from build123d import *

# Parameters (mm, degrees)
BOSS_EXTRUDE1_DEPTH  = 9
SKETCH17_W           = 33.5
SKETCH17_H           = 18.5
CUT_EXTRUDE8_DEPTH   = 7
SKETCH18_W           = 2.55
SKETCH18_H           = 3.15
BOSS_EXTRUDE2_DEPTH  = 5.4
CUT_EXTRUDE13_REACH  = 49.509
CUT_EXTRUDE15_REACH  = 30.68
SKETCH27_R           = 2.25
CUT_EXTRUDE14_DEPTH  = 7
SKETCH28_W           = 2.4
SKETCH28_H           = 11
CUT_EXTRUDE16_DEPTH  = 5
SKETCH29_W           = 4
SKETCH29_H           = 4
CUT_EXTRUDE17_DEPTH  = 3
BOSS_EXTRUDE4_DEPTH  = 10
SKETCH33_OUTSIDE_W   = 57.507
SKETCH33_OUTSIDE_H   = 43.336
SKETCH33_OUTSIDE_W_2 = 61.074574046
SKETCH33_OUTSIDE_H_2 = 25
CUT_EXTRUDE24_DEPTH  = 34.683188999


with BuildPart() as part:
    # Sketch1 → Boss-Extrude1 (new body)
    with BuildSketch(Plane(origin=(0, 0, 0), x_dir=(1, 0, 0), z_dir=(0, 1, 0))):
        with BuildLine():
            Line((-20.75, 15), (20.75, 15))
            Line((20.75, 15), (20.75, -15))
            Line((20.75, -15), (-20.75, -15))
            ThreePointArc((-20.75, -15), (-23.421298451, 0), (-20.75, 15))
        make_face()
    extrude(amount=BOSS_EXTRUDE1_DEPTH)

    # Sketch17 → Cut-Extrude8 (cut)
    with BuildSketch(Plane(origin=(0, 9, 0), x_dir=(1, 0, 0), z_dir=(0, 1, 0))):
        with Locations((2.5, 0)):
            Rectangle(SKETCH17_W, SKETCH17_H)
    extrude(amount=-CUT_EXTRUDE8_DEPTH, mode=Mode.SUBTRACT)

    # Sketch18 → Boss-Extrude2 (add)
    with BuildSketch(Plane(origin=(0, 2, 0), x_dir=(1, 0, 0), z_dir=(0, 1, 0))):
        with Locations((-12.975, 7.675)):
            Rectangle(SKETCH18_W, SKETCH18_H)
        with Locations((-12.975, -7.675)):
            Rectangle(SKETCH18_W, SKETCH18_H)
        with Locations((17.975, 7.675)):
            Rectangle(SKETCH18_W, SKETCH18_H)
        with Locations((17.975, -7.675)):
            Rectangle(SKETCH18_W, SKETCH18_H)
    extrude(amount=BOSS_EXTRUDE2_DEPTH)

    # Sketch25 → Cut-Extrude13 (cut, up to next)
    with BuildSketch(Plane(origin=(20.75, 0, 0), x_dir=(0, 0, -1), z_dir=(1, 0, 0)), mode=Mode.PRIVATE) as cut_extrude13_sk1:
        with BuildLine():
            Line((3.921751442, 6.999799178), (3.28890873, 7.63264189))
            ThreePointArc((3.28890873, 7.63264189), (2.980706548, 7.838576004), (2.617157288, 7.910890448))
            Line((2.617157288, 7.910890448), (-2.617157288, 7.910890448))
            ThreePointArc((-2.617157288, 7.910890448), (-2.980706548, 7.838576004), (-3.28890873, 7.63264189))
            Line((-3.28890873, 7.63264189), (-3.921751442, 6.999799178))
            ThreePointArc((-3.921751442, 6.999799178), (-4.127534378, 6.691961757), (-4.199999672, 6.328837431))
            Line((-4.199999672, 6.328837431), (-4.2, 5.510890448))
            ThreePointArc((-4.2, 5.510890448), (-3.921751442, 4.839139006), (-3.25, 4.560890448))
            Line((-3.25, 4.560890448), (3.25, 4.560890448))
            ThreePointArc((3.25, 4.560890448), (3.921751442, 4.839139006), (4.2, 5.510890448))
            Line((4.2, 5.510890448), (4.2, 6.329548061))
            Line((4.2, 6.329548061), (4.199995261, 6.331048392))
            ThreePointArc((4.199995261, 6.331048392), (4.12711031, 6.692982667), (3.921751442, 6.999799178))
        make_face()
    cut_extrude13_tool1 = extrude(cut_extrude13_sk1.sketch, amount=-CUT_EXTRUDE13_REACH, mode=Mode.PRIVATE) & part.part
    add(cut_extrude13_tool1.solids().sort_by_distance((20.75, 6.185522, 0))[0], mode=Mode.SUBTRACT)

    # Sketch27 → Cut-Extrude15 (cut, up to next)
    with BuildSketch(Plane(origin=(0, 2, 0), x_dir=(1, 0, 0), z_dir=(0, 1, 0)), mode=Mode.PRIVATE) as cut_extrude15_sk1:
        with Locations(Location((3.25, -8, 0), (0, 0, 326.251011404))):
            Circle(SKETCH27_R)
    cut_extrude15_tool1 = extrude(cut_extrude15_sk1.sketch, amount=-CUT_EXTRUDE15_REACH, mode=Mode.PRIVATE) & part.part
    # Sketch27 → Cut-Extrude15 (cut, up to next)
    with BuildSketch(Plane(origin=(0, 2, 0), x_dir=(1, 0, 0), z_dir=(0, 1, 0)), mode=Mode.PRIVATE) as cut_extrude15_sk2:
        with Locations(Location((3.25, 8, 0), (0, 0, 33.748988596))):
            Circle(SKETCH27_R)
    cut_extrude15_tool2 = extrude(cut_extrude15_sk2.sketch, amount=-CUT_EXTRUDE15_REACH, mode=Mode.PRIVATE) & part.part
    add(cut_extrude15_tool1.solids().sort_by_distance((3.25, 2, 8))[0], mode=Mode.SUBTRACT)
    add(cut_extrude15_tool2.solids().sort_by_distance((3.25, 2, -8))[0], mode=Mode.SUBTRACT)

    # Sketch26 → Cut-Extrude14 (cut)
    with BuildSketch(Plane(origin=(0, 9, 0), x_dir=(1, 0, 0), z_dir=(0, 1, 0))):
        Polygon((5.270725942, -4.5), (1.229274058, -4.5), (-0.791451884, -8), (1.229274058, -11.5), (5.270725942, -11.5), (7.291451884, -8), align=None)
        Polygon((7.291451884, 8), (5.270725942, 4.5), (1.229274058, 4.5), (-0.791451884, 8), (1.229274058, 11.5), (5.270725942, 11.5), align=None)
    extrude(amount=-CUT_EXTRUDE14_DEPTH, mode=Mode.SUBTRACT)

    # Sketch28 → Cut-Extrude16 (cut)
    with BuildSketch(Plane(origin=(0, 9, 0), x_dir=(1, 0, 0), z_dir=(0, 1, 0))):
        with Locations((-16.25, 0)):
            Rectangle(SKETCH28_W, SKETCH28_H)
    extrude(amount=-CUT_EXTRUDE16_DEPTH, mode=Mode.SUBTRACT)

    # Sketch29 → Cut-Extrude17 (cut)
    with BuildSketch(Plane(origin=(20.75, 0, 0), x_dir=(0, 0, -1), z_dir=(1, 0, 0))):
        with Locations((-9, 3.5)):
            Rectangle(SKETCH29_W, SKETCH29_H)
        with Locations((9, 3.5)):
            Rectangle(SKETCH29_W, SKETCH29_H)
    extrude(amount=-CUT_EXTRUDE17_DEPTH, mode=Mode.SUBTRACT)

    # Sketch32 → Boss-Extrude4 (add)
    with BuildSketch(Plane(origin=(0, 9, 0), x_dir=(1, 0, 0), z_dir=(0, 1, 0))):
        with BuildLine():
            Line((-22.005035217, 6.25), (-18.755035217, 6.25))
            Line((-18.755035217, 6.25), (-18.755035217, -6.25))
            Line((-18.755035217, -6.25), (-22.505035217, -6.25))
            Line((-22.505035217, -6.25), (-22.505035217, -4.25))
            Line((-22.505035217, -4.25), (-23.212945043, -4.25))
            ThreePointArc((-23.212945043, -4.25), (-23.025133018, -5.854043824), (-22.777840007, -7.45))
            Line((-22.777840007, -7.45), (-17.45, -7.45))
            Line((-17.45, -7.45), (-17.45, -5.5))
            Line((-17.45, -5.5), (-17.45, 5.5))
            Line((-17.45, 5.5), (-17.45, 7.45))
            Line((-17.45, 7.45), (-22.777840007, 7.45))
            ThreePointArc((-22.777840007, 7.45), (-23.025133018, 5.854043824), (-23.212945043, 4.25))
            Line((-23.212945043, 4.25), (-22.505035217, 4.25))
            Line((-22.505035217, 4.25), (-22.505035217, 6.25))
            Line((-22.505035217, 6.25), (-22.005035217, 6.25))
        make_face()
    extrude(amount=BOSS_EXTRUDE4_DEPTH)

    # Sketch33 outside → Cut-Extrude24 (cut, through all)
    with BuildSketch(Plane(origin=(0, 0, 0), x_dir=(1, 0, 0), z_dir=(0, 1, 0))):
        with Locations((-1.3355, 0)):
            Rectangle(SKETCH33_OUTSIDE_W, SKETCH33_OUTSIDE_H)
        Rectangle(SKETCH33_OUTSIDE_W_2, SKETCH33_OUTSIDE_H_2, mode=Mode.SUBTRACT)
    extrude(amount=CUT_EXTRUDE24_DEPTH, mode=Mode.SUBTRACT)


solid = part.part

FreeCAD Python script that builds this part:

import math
import FreeCAD as App
import Part
import Sketcher
from FreeCAD import Vector
Q = App.Units.Quantity

doc = App.newDocument("Part")
body = doc.addObject("PartDesign::Body", "Body")

sketch1 = body.newObject("Sketcher::SketchObject", "Sketch")
sketch1.AttachmentSupport = (doc.getObject("XZ_Plane"), [""])
sketch1.MapMode = "FlatFace"
sketch1.addGeometry([
    Part.LineSegment(Vector(21, -15, 0), Vector(-21, -15, 0)),
    Part.ArcOfCircle(Part.Circle(Vector(20, 0, 0), Vector(0, 0, 1), 43), math.radians(160), math.radians(200)),
    Part.LineSegment(Vector(-21, 15, 0), Vector(21, 15, 0)),
    Part.LineSegment(Vector(21, 15, 0), Vector(21, -15, 0)),
], False)
sketch1.addConstraint([
    Sketcher.Constraint("Coincident", 0, 2, 1, 2),
    Sketcher.Constraint("Coincident", 1, 1, 2, 1),
    Sketcher.Constraint("Coincident", 2, 2, 3, 1),
    Sketcher.Constraint("Coincident", 3, 2, 0, 1),
    Sketcher.Constraint("Horizontal", 0),
    Sketcher.Constraint("Horizontal", 2),
    Sketcher.Constraint("Vertical", 3),
    Sketcher.Constraint("Symmetric", 0, 2, 2, 2, -1, 1),
    Sketcher.Constraint("PointOnObject", 1, 3, -1),
    Sketcher.Constraint("DistanceY", 3, 2, 3, 1, Q("30 mm")),
    Sketcher.Constraint("Radius", 1, Q("43.45 mm")),
    Sketcher.Constraint("DistanceX", 0, 2, 0, 1, Q("41.5 mm")),
])
pad1 = body.newObject("PartDesign::Pad", "Pad")
pad1.Profile = sketch1
pad1.Length = 9
pad1.Reversed = True

sketch2 = body.newObject("Sketcher::SketchObject", "Sketch001")
sketch2.AttachmentSupport = (doc.getObject("XZ_Plane"), [""])
sketch2.MapMode = "FlatFace"
sketch2.AttachmentOffset = App.Placement(Vector(0, 0, -9), App.Rotation())
sketch2.addGeometry([
    Part.LineSegment(Vector(-14, -9, 0), Vector(-14, 9, 0)),
    Part.LineSegment(Vector(-14, 9, 0), Vector(19, 9, 0)),
    Part.LineSegment(Vector(19, 9, 0), Vector(19, -9, 0)),
    Part.LineSegment(Vector(19, -9, 0), Vector(-14, -9, 0)),
], False)
sketch2.addConstraint([
    Sketcher.Constraint("Coincident", 0, 2, 1, 1),
    Sketcher.Constraint("Coincident", 1, 2, 2, 1),
    Sketcher.Constraint("Coincident", 2, 2, 3, 1),
    Sketcher.Constraint("Coincident", 3, 2, 0, 1),
    Sketcher.Constraint("Vertical", 0),
    Sketcher.Constraint("Horizontal", 1),
    Sketcher.Constraint("Vertical", 2),
    Sketcher.Constraint("Horizontal", 3),
    Sketcher.Constraint("DistanceX", 1, 1, 1, 2, Q("33.5 mm")),
    Sketcher.Constraint("DistanceY", 0, 1, 0, 2, Q("18.5 mm")),
    Sketcher.Constraint("DistanceX", 0, 2, -1, 1, Q("14.25 mm")),
    Sketcher.Constraint("DistanceY", -1, 1, 0, 2, Q("9.25 mm")),
])
pocket1 = body.newObject("PartDesign::Pocket", "Pocket")
pocket1.Profile = sketch2
pocket1.Length = 7
pocket1.Reversed = True

sketch3 = body.newObject("Sketcher::SketchObject", "Sketch002")
sketch3.AttachmentSupport = (doc.getObject("XZ_Plane"), [""])
sketch3.MapMode = "FlatFace"
sketch3.AttachmentOffset = App.Placement(Vector(0, 0, -2), App.Rotation())
sketch3.addGeometry([
    Part.LineSegment(Vector(-14.2, -9.2, 0), Vector(-14.2, -6.1, 0)),
    Part.LineSegment(Vector(-14.2, -6.1, 0), Vector(-11.7, -6.1, 0)),
    Part.LineSegment(Vector(-11.7, -6.1, 0), Vector(-11.7, -9.2, 0)),
    Part.LineSegment(Vector(-11.7, -9.2, 0), Vector(-14.2, -9.2, 0)),
    Part.LineSegment(Vector(-14.2, 6.1, 0), Vector(-14.2, 9.2, 0)),
    Part.LineSegment(Vector(-14.2, 9.2, 0), Vector(-11.7, 9.2, 0)),
    Part.LineSegment(Vector(-11.7, 9.2, 0), Vector(-11.7, 6.1, 0)),
    Part.LineSegment(Vector(-11.7, 6.1, 0), Vector(-14.2, 6.1, 0)),
    Part.LineSegment(Vector(16.7, -9.2, 0), Vector(16.7, -6.1, 0)),
    Part.LineSegment(Vector(16.7, -6.1, 0), Vector(19.2, -6.1, 0)),
    Part.LineSegment(Vector(19.2, -6.1, 0), Vector(19.2, -9.2, 0)),
    Part.LineSegment(Vector(19.2, -9.2, 0), Vector(16.7, -9.2, 0)),
    Part.LineSegment(Vector(16.7, 6.1, 0), Vector(16.7, 9.2, 0)),
    Part.LineSegment(Vector(16.7, 9.2, 0), Vector(19.2, 9.2, 0)),
    Part.LineSegment(Vector(19.2, 9.2, 0), Vector(19.2, 6.1, 0)),
    Part.LineSegment(Vector(19.2, 6.1, 0), Vector(16.7, 6.1, 0)),
], False)
sketch3.addConstraint([
    Sketcher.Constraint("Coincident", 0, 2, 1, 1),
    Sketcher.Constraint("Coincident", 1, 2, 2, 1),
    Sketcher.Constraint("Coincident", 2, 2, 3, 1),
    Sketcher.Constraint("Coincident", 3, 2, 0, 1),
    Sketcher.Constraint("Coincident", 4, 2, 5, 1),
    Sketcher.Constraint("Coincident", 5, 2, 6, 1),
    Sketcher.Constraint("Coincident", 6, 2, 7, 1),
    Sketcher.Constraint("Coincident", 7, 2, 4, 1),
    Sketcher.Constraint("Coincident", 8, 2, 9, 1),
    Sketcher.Constraint("Coincident", 9, 2, 10, 1),
    Sketcher.Constraint("Coincident", 10, 2, 11, 1),
    Sketcher.Constraint("Coincident", 11, 2, 8, 1),
    Sketcher.Constraint("Coincident", 12, 2, 13, 1),
    Sketcher.Constraint("Coincident", 13, 2, 14, 1),
    Sketcher.Constraint("Coincident", 14, 2, 15, 1),
    Sketcher.Constraint("Coincident", 15, 2, 12, 1),
    Sketcher.Constraint("Vertical", 0),
    Sketcher.Constraint("Horizontal", 1),
    Sketcher.Constraint("Vertical", 2),
    Sketcher.Constraint("Horizontal", 3),
    Sketcher.Constraint("Vertical", 4),
    Sketcher.Constraint("Horizontal", 5),
    Sketcher.Constraint("Vertical", 6),
    Sketcher.Constraint("Horizontal", 7),
    Sketcher.Constraint("Vertical", 8),
    Sketcher.Constraint("Horizontal", 9),
    Sketcher.Constraint("Vertical", 10),
    Sketcher.Constraint("Horizontal", 11),
    Sketcher.Constraint("Vertical", 12),
    Sketcher.Constraint("Horizontal", 13),
    Sketcher.Constraint("Vertical", 14),
    Sketcher.Constraint("Horizontal", 15),
    Sketcher.Constraint("Symmetric", 3, 2, 4, 2, -1),
    Sketcher.Constraint("Symmetric", 1, 2, 6, 2, -1),
    Sketcher.Constraint("Symmetric", 11, 2, 12, 2, -1),
    Sketcher.Constraint("Symmetric", 9, 2, 14, 2, -1),
    Sketcher.Constraint("Horizontal", 1, 2, 8, 2),
    Sketcher.Constraint("Horizontal", 3, 2, 10, 2),
    Sketcher.Constraint("Equal", 7, 9),
    Sketcher.Constraint("DistanceX", 1, 1, 1, 2, Q("2.55 mm")),
    Sketcher.Constraint("DistanceY", 0, 1, 0, 2, Q("3.15 mm")),
    Sketcher.Constraint("DistanceY", 0, 2, -1, 1, Q("6.1 mm")),
    Sketcher.Constraint("DistanceX", 1, 2, -1, 1, Q("11.7 mm")),
    Sketcher.Constraint("DistanceX", -1, 1, 8, 2, Q("16.7 mm")),
])
pad2 = body.newObject("PartDesign::Pad", "Pad001")
pad2.Profile = sketch3
pad2.Length = 5.4
pad2.Reversed = True

sketch4 = body.newObject("Sketcher::SketchObject", "Sketch003")
sketch4.AttachmentSupport = (doc.getObject("YZ_Plane"), [""])
sketch4.MapMode = "FlatFace"
sketch4.AttachmentOffset = App.Placement(Vector(0, 0, 20.75), App.Rotation())
sketch4.addGeometry([
    Part.LineSegment(Vector(6.9998, -3.9218, 0), Vector(7.6326, -3.2889, 0)),
    Part.ArcOfCircle(Part.Circle(Vector(6.9609, -2.6172, 0), Vector(0, 0, 1), 0.95), math.radians(-45), math.radians(0)),
    Part.LineSegment(Vector(7.9109, -2.6172, 0), Vector(7.9109, 2.6172, 0)),
    Part.ArcOfCircle(Part.Circle(Vector(6.9609, 2.6172, 0), Vector(0, 0, 1), 0.95), math.radians(0), math.radians(45)),
    Part.LineSegment(Vector(7.6326, 3.2889, 0), Vector(6.9998, 3.9218, 0)),
    Part.ArcOfCircle(Part.Circle(Vector(6.328, 3.25, 0), Vector(0, 0, 1), 0.95), math.radians(45), math.radians(90)),
    Part.LineSegment(Vector(6.3288, 4.2, 0), Vector(5.5109, 4.2, 0)),
    Part.ArcOfCircle(Part.Circle(Vector(5.5109, 3.25, 0), Vector(0, 0, 1), 0.95), math.radians(90), math.radians(180)),
    Part.LineSegment(Vector(4.5609, 3.25, 0), Vector(4.5609, -3.25, 0)),
    Part.ArcOfCircle(Part.Circle(Vector(5.5109, -3.25, 0), Vector(0, 0, 1), 0.95), math.radians(180), math.radians(270)),
    Part.LineSegment(Vector(5.5109, -4.2, 0), Vector(6.3295, -4.2, 0)),
    Part.LineSegment(Vector(6.3295, -4.2, 0), Vector(6.331, -4.2, 0)),
    Part.ArcOfCircle(Part.Circle(Vector(6.328, -3.25, 0), Vector(0, 0, 1), 0.95), math.radians(-90), math.radians(-45)),
], False)
sketch4.addConstraint([
    Sketcher.Constraint("Tangent", 0, 2, 1, 1),
    Sketcher.Constraint("Tangent", 1, 2, 2, 1),
    Sketcher.Constraint("Tangent", 2, 2, 3, 1),
    Sketcher.Constraint("Tangent", 3, 2, 4, 1),
    Sketcher.Constraint("Tangent", 4, 2, 5, 1),
    Sketcher.Constraint("Coincident", 5, 2, 6, 1),
    Sketcher.Constraint("Tangent", 6, 2, 7, 1),
    Sketcher.Constraint("Tangent", 7, 2, 8, 1),
    Sketcher.Constraint("Tangent", 8, 2, 9, 1),
    Sketcher.Constraint("Tangent", 9, 2, 10, 1),
    Sketcher.Constraint("Coincident", 10, 2, 11, 1),
    Sketcher.Constraint("Tangent", 11, 2, 12, 1),
    Sketcher.Constraint("Tangent", 12, 2, 0, 1),
    Sketcher.Constraint("Vertical", 2),
    Sketcher.Constraint("Horizontal", 6),
    Sketcher.Constraint("Vertical", 8),
    Sketcher.Constraint("Horizontal", 10),
    Sketcher.Constraint("Equal", 1, 3),
    Sketcher.Constraint("Equal", 3, 5),
    Sketcher.Constraint("Equal", 5, 7),
    Sketcher.Constraint("Equal", 7, 9),
    Sketcher.Constraint("Equal", 9, 12),
    Sketcher.Constraint("Symmetric", 5, 3, 12, 3, -1),
    Sketcher.Constraint("Perpendicular", 0, 4),
    Sketcher.Constraint("Vertical", 0, 2, 3, 2),
    Sketcher.Constraint("Radius", 1, Q("0.95 mm")),
    Sketcher.Constraint("DistanceY", 8, 2, 8, 1, Q("6.5 mm")),
    Sketcher.Constraint("DistanceX", 9, 3, 1, 2, Q("2.4 mm")),
    Sketcher.Constraint("DistanceX", 12, 3, 11, 2, Q("0.003001 mm")),
    Sketcher.Constraint("Distance", 11, Q("0.0015 mm")),
    Sketcher.Constraint("DistanceX", -1, 1, 4, 2, Q("6.999799 mm")),
    Sketcher.Constraint("DistanceX", 6, 2, 6, 1, Q("0.817947 mm")),
    Sketcher.Constraint("DistanceX", 10, 1, 10, 2, Q("0.818658 mm")),
])
pocket2 = body.newObject("PartDesign::Pocket", "Pocket001")
pocket2.Profile = sketch4
pocket2.Type = "UpToFirst"

sketch5 = body.newObject("Sketcher::SketchObject", "Sketch004")
sketch5.AttachmentSupport = (doc.getObject("XZ_Plane"), [""])
sketch5.MapMode = "FlatFace"
sketch5.AttachmentOffset = App.Placement(Vector(0, 0, -2), App.Rotation())
sketch5.addGeometry(Part.Circle(Vector(3.2, 8, 0), Vector(0, 0, 1), 2.2), False)
sketch5.addConstraint([
    Sketcher.Constraint("Diameter", 0, Q("4.5 mm")),
    Sketcher.Constraint("DistanceY", -1, 1, 0, 3, Q("8 mm")),
    Sketcher.Constraint("DistanceX", -1, 1, 0, 3, Q("3.25 mm")),
])
pocket3 = body.newObject("PartDesign::Pocket", "Pocket002")
pocket3.Profile = sketch5
pocket3.Type = "UpToFirst"
pocket3.Reversed = True

sketch6 = body.newObject("Sketcher::SketchObject", "Sketch005")
sketch6.AttachmentSupport = (doc.getObject("XZ_Plane"), [""])
sketch6.MapMode = "FlatFace"
sketch6.AttachmentOffset = App.Placement(Vector(0, 0, -2), App.Rotation())
sketch6.addGeometry(Part.Circle(Vector(3.2, -8, 0), Vector(0, 0, 1), 2.2), False)
sketch6.addConstraint([
    Sketcher.Constraint("Diameter", 0, Q("4.5 mm")),
    Sketcher.Constraint("DistanceY", 0, 3, -1, 1, Q("8 mm")),
    Sketcher.Constraint("DistanceX", -1, 1, 0, 3, Q("3.25 mm")),
])
pocket4 = body.newObject("PartDesign::Pocket", "Pocket003")
pocket4.Profile = sketch6
pocket4.Type = "UpToFirst"
pocket4.Reversed = True

sketch7 = body.newObject("Sketcher::SketchObject", "Sketch006")
sketch7.AttachmentSupport = (doc.getObject("XZ_Plane"), [""])
sketch7.MapMode = "FlatFace"
sketch7.AttachmentOffset = App.Placement(Vector(0, 0, -9), App.Rotation())
sketch7.addGeometry([
    Part.LineSegment(Vector(5.3, 4.5, 0), Vector(1.2, 4.5, 0)),
    Part.LineSegment(Vector(1.2, 4.5, 0), Vector(-0.8, 8, 0)),
    Part.LineSegment(Vector(-0.8, 8, 0), Vector(1.2, 11.5, 0)),
    Part.LineSegment(Vector(1.2, 11.5, 0), Vector(5.3, 11.5, 0)),
    Part.LineSegment(Vector(5.3, 11.5, 0), Vector(7.3, 8, 0)),
    Part.LineSegment(Vector(7.3, 8, 0), Vector(5.3, 4.5, 0)),
    Part.LineSegment(Vector(5.3, -4.5, 0), Vector(7.3, -8, 0)),
    Part.LineSegment(Vector(7.3, -8, 0), Vector(5.3, -11.5, 0)),
    Part.LineSegment(Vector(5.3, -11.5, 0), Vector(1.2, -11.5, 0)),
    Part.LineSegment(Vector(1.2, -11.5, 0), Vector(-0.8, -8, 0)),
    Part.LineSegment(Vector(-0.8, -8, 0), Vector(1.2, -4.5, 0)),
    Part.LineSegment(Vector(1.2, -4.5, 0), Vector(5.3, -4.5, 0)),
], False)
sketch7.addConstraint([
    Sketcher.Constraint("Coincident", 0, 2, 1, 1),
    Sketcher.Constraint("Coincident", 1, 2, 2, 1),
    Sketcher.Constraint("Coincident", 2, 2, 3, 1),
    Sketcher.Constraint("Coincident", 3, 2, 4, 1),
    Sketcher.Constraint("Coincident", 4, 2, 5, 1),
    Sketcher.Constraint("Coincident", 5, 2, 0, 1),
    Sketcher.Constraint("Coincident", 6, 2, 7, 1),
    Sketcher.Constraint("Coincident", 7, 2, 8, 1),
    Sketcher.Constraint("Coincident", 8, 2, 9, 1),
    Sketcher.Constraint("Coincident", 9, 2, 10, 1),
    Sketcher.Constraint("Coincident", 10, 2, 11, 1),
    Sketcher.Constraint("Coincident", 11, 2, 6, 1),
    Sketcher.Constraint("Horizontal", 0),
    Sketcher.Constraint("Horizontal", 3),
    Sketcher.Constraint("Horizontal", 8),
    Sketcher.Constraint("Horizontal", 11),
    Sketcher.Constraint("Symmetric", 4, 2, 6, 2, -1),
    Sketcher.Constraint("Symmetric", 3, 2, 7, 2, -1),
    Sketcher.Constraint("Symmetric", 1, 2, 9, 2, -1),
    Sketcher.Constraint("Symmetric", 0, 2, 10, 2, -1),
    Sketcher.Constraint("Parallel", 1, 4),
    Sketcher.Constraint("Parallel", 2, 5),
    Sketcher.Constraint("Parallel", 4, 6),
    Sketcher.Constraint("Parallel", 5, 7),
    Sketcher.Constraint("Parallel", 6, 9),
    Sketcher.Constraint("Horizontal", 1, 2, 4, 2),
    Sketcher.Constraint("Vertical", 0, 2, 2, 2),
    Sketcher.Constraint("Angle", 1, Q("120 deg")),
    Sketcher.Constraint("DistanceY", -1, 1, 1, 2, Q("8 mm")),
    Sketcher.Constraint("DistanceY", 0, 2, 2, 2, Q("7 mm")),
    Sketcher.Constraint("DistanceX", 0, 2, 0, 1, Q("4.041452 mm")),
    Sketcher.Constraint("DistanceX", 1, 2, -1, 1, Q("0.791452 mm")),
])
pocket5 = body.newObject("PartDesign::Pocket", "Pocket004")
pocket5.Profile = sketch7
pocket5.Length = 7
pocket5.Reversed = True

sketch8 = body.newObject("Sketcher::SketchObject", "Sketch007")
sketch8.AttachmentSupport = (doc.getObject("XZ_Plane"), [""])
sketch8.MapMode = "FlatFace"
sketch8.AttachmentOffset = App.Placement(Vector(0, 0, -9), App.Rotation())
sketch8.addGeometry([
    Part.LineSegment(Vector(-17.4, -5.5, 0), Vector(-17.4, 5.5, 0)),
    Part.LineSegment(Vector(-17.4, 5.5, 0), Vector(-15.1, 5.5, 0)),
    Part.LineSegment(Vector(-15.1, 5.5, 0), Vector(-15.1, -5.5, 0)),
    Part.LineSegment(Vector(-15.1, -5.5, 0), Vector(-17.4, -5.5, 0)),
], False)
sketch8.addConstraint([
    Sketcher.Constraint("Coincident", 0, 2, 1, 1),
    Sketcher.Constraint("Coincident", 1, 2, 2, 1),
    Sketcher.Constraint("Coincident", 2, 2, 3, 1),
    Sketcher.Constraint("Coincident", 3, 2, 0, 1),
    Sketcher.Constraint("Vertical", 0),
    Sketcher.Constraint("Horizontal", 1),
    Sketcher.Constraint("Vertical", 2),
    Sketcher.Constraint("Horizontal", 3),
    Sketcher.Constraint("DistanceY", 0, 1, 0, 2, Q("11 mm")),
    Sketcher.Constraint("DistanceX", 1, 1, 1, 2, Q("2.4 mm")),
    Sketcher.Constraint("DistanceY", -1, 1, 0, 2, Q("5.5 mm")),
    Sketcher.Constraint("DistanceX", 0, 2, -1, 1, Q("17.45 mm")),
])
pocket6 = body.newObject("PartDesign::Pocket", "Pocket005")
pocket6.Profile = sketch8
pocket6.Length = 5
pocket6.Reversed = True

sketch9 = body.newObject("Sketcher::SketchObject", "Sketch008")
sketch9.AttachmentSupport = (doc.getObject("YZ_Plane"), [""])
sketch9.MapMode = "FlatFace"
sketch9.AttachmentOffset = App.Placement(Vector(0, 0, 20.75), App.Rotation())
sketch9.addGeometry([
    Part.LineSegment(Vector(5.5, 11, 0), Vector(1.5, 11, 0)),
    Part.LineSegment(Vector(1.5, 11, 0), Vector(1.5, 7, 0)),
    Part.LineSegment(Vector(1.5, 7, 0), Vector(5.5, 7, 0)),
    Part.LineSegment(Vector(5.5, 7, 0), Vector(5.5, 11, 0)),
    Part.LineSegment(Vector(5.5, -7, 0), Vector(1.5, -7, 0)),
    Part.LineSegment(Vector(1.5, -7, 0), Vector(1.5, -11, 0)),
    Part.LineSegment(Vector(1.5, -11, 0), Vector(5.5, -11, 0)),
    Part.LineSegment(Vector(5.5, -11, 0), Vector(5.5, -7, 0)),
], False)
sketch9.addConstraint([
    Sketcher.Constraint("Coincident", 0, 2, 1, 1),
    Sketcher.Constraint("Coincident", 1, 2, 2, 1),
    Sketcher.Constraint("Coincident", 2, 2, 3, 1),
    Sketcher.Constraint("Coincident", 3, 2, 0, 1),
    Sketcher.Constraint("Coincident", 4, 2, 5, 1),
    Sketcher.Constraint("Coincident", 5, 2, 6, 1),
    Sketcher.Constraint("Coincident", 6, 2, 7, 1),
    Sketcher.Constraint("Coincident", 7, 2, 4, 1),
    Sketcher.Constraint("Horizontal", 0),
    Sketcher.Constraint("Vertical", 1),
    Sketcher.Constraint("Horizontal", 2),
    Sketcher.Constraint("Vertical", 3),
    Sketcher.Constraint("Horizontal", 4),
    Sketcher.Constraint("Vertical", 5),
    Sketcher.Constraint("Horizontal", 6),
    Sketcher.Constraint("Vertical", 7),
    Sketcher.Constraint("Symmetric", 1, 2, 4, 2, -1),
    Sketcher.Constraint("Symmetric", 3, 2, 6, 2, -1),
    Sketcher.Constraint("Equal", 6, 1),
    Sketcher.Constraint("DistanceX", 0, 2, 0, 1, Q("4 mm")),
    Sketcher.Constraint("DistanceY", -1, 1, 0, 2, Q("11 mm")),
    Sketcher.Constraint("DistanceX", -1, 1, 0, 2, Q("1.5 mm")),
])
pocket7 = body.newObject("PartDesign::Pocket", "Pocket006")
pocket7.Profile = sketch9
pocket7.Length = 3

sketch10 = body.newObject("Sketcher::SketchObject", "Sketch009")
sketch10.AttachmentSupport = (doc.getObject("XZ_Plane"), [""])
sketch10.MapMode = "FlatFace"
sketch10.AttachmentOffset = App.Placement(Vector(0, 0, -9), App.Rotation())
sketch10.addGeometry([
    Part.LineSegment(Vector(-18.8, -6.2, 0), Vector(-18.8, 6.2, 0)),
    Part.LineSegment(Vector(-18.8, 6.2, 0), Vector(-22.5, 6.2, 0)),
    Part.LineSegment(Vector(-22.5, 6.2, 0), Vector(-22.5, 4.2, 0)),
    Part.LineSegment(Vector(-22.5, 4.2, 0), Vector(-23.2, 4.2, 0)),
    Part.ArcOfCircle(Part.Circle(Vector(20, 0, 0), Vector(0, 0, 1), 43.4), math.radians(170.13), math.radians(174.39)),
    Part.LineSegment(Vector(-22.8, 7.5, 0), Vector(-17.4, 7.5, 0)),
    Part.LineSegment(Vector(-17.4, 7.5, 0), Vector(-17.4, -7.5, 0)),
    Part.LineSegment(Vector(-17.4, -7.5, 0), Vector(-22.8, -7.5, 0)),
    Part.ArcOfCircle(Part.Circle(Vector(20, 0, 0), Vector(0, 0, 1), 43.4), math.radians(-174.39), math.radians(-170.13)),
    Part.LineSegment(Vector(-23.2, -4.2, 0), Vector(-22.5, -4.2, 0)),
    Part.LineSegment(Vector(-22.5, -4.2, 0), Vector(-22.5, -6.2, 0)),
    Part.LineSegment(Vector(-22.5, -6.2, 0), Vector(-18.8, -6.2, 0)),
], False)
sketch10.addConstraint([
    Sketcher.Constraint("Coincident", 0, 2, 1, 1),
    Sketcher.Constraint("Coincident", 1, 2, 2, 1),
    Sketcher.Constraint("Coincident", 2, 2, 3, 1),
    Sketcher.Constraint("Coincident", 3, 2, 4, 2),
    Sketcher.Constraint("Coincident", 4, 1, 5, 1),
    Sketcher.Constraint("Coincident", 5, 2, 6, 1),
    Sketcher.Constraint("Coincident", 6, 2, 7, 1),
    Sketcher.Constraint("Coincident", 7, 2, 8, 2),
    Sketcher.Constraint("Coincident", 8, 1, 9, 1),
    Sketcher.Constraint("Coincident", 9, 2, 10, 1),
    Sketcher.Constraint("Coincident", 10, 2, 11, 1),
    Sketcher.Constraint("Coincident", 11, 2, 0, 1),
    Sketcher.Constraint("Vertical", 0),
    Sketcher.Constraint("Horizontal", 1),
    Sketcher.Constraint("Vertical", 2),
    Sketcher.Constraint("Horizontal", 3),
    Sketcher.Constraint("Horizontal", 5),
    Sketcher.Constraint("Vertical", 6),
    Sketcher.Constraint("Horizontal", 7),
    Sketcher.Constraint("Horizontal", 9),
    Sketcher.Constraint("Vertical", 10),
    Sketcher.Constraint("Horizontal", 11),
    Sketcher.Constraint("Coincident", 8, 3, 4, 3),
    Sketcher.Constraint("Equal", 4, 8),
    Sketcher.Constraint("Symmetric", 4, 1, 7, 2, -1),
    Sketcher.Constraint("Symmetric", 2, 2, 9, 2, -1),
    Sketcher.Constraint("Equal", 2, 10),
    Sketcher.Constraint("DistanceY", 2, 2, 2, 1, Q("2 mm")),
    Sketcher.Constraint("Radius", 4, Q("43.45 mm")),
    Sketcher.Constraint("DistanceY", 0, 1, 0, 2, Q("12.5 mm")),
    Sketcher.Constraint("DistanceY", 6, 2, 6, 1, Q("14.9 mm")),
    Sketcher.Constraint("DistanceX", 1, 2, 1, 1, Q("3.75 mm")),
    Sketcher.Constraint("DistanceX", 5, 2, -1, 1, Q("17.45 mm")),
    Sketcher.Constraint("DistanceX", 3, 2, 3, 1, Q("0.70791 mm")),
    Sketcher.Constraint("DistanceX", 5, 1, 5, 2, Q("5.32784 mm")),
])
pad3 = body.newObject("PartDesign::Pad", "Pad002")
pad3.Profile = sketch10
pad3.Length = 10
pad3.Reversed = True

sketch11 = body.newObject("Sketcher::SketchObject", "Sketch010")
sketch11.AttachmentSupport = (doc.getObject("XZ_Plane"), [""])
sketch11.MapMode = "FlatFace"
sketch11.addGeometry([
    Part.LineSegment(Vector(-30, 12, 0), Vector(-30, 22, 0)),
    Part.LineSegment(Vector(-30, 22, 0), Vector(27, 22, 0)),
    Part.LineSegment(Vector(27, 22, 0), Vector(27, 12, 0)),
    Part.LineSegment(Vector(27, 12, 0), Vector(-30, 12, 0)),
    Part.LineSegment(Vector(-30, -22, 0), Vector(-30, -12, 0)),
    Part.LineSegment(Vector(-30, -12, 0), Vector(27, -12, 0)),
    Part.LineSegment(Vector(27, -12, 0), Vector(27, -22, 0)),
    Part.LineSegment(Vector(27, -22, 0), Vector(-30, -22, 0)),
], False)
sketch11.addConstraint([
    Sketcher.Constraint("Coincident", 0, 2, 1, 1),
    Sketcher.Constraint("Coincident", 1, 2, 2, 1),
    Sketcher.Constraint("Coincident", 2, 2, 3, 1),
    Sketcher.Constraint("Coincident", 3, 2, 0, 1),
    Sketcher.Constraint("Coincident", 4, 2, 5, 1),
    Sketcher.Constraint("Coincident", 5, 2, 6, 1),
    Sketcher.Constraint("Coincident", 6, 2, 7, 1),
    Sketcher.Constraint("Coincident", 7, 2, 4, 1),
    Sketcher.Constraint("Vertical", 0),
    Sketcher.Constraint("Horizontal", 1),
    Sketcher.Constraint("Vertical", 2),
    Sketcher.Constraint("Horizontal", 3),
    Sketcher.Constraint("Vertical", 4),
    Sketcher.Constraint("Horizontal", 5),
    Sketcher.Constraint("Vertical", 6),
    Sketcher.Constraint("Horizontal", 7),
    Sketcher.Constraint("Symmetric", 3, 2, 4, 2, -1),
    Sketcher.Constraint("Symmetric", 1, 2, 6, 2, -1),
    Sketcher.Constraint("DistanceY", 4, 2, 3, 2, Q("25 mm")),
    Sketcher.Constraint("DistanceX", 1, 1, 1, 2, Q("57.507 mm")),
    Sketcher.Constraint("DistanceY", 0, 1, 0, 2, Q("9.168 mm")),
    Sketcher.Constraint("DistanceX", 0, 2, -1, 1, Q("30.089 mm")),
])
pocket8 = body.newObject("PartDesign::Pocket", "Pocket007")
pocket8.Profile = sketch11
pocket8.Type = "ThroughAll"

doc.recompute()
